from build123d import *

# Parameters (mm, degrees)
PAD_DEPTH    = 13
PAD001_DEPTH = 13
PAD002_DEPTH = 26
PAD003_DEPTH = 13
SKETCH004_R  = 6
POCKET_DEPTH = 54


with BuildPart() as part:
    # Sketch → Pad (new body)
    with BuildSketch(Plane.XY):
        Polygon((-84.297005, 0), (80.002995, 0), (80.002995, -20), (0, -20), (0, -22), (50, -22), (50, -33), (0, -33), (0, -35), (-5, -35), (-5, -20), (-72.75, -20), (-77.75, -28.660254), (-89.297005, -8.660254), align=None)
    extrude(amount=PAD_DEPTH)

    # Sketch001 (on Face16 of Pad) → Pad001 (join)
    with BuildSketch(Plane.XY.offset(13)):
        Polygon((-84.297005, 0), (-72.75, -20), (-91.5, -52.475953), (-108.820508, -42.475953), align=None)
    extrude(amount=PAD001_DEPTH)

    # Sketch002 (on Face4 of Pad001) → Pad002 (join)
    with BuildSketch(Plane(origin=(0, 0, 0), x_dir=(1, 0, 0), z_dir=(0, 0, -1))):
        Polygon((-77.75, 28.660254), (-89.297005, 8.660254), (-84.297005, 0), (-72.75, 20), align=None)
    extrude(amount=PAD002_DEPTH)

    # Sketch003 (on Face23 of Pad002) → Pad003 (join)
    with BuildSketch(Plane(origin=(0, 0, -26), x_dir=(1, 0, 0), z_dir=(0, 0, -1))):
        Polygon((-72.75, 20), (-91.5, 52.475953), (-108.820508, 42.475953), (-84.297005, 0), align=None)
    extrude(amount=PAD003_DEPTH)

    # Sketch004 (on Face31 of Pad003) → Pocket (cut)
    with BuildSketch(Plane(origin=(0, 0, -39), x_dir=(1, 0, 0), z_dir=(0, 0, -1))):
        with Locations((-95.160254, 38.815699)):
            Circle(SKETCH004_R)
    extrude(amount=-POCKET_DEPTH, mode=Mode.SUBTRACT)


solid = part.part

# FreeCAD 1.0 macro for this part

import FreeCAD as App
import Part
import Sketcher
Q = App.Units.Quantity


def add_polygon(sketch, points):
    """Adds a closed chain of lines whose ends are joined by coincident constraints."""
    first, n = sketch.GeometryCount, len(points)
    for a, b in zip(points, points[1:] + points[:1]):
        sketch.addGeometry(Part.LineSegment(App.Vector(*a, 0), App.Vector(*b, 0)), False)
    for i in range(n):
        sketch.addConstraint(Sketcher.Constraint("Coincident", first + i, 2, first + (i + 1) % n, 1))

doc = App.newDocument("Part")
params = doc.addObject("Spreadsheet::Sheet", "Params")
for row, (alias, value) in enumerate([
    ("sketch1_width", "5 mm"),
    ("sketch1_width2", "50 mm"),
    ("sketch1_height", "15 mm"),
    ("sketch1_height2", "2 mm"),
    ("sketch1_height3", "20 mm"),
    ("pad1_length", "13 mm"),
    ("sketch2_length", "20 mm"),
    ("sketch2_length2", "37.5 mm"),
    ("pad2_length", "13 mm"),
    ("sketch3_length", "10 mm"),
    ("pad3_length", "26 mm"),
    ("sketch4_length", "20 mm"),
    ("sketch4_length2", "37.5 mm"),
    ("pad4_length", "13 mm"),
    ("sketch5_diameter", "12 mm"),
    ("pocket1_length", "54 mm"),
], start=1):
    params.set(f"A{row}", alias)
    params.set(f"B{row}", "=" + value)
    params.setAlias(f"B{row}", alias)

body = doc.addObject("PartDesign::Body", "Body")

sketch1 = doc.addObject("Sketcher::SketchObject", "Sketch")
body.addObject(sketch1)
sketch1.AttachmentSupport = (doc.XY_Plane, [""])
sketch1.MapMode = "FlatFace"
add_polygon(sketch1, [(80.002995, 0), (-84.297005, 0), (-89.297005, -8.660254), (-77.75, -28.660254), (-72.75, -20), (-5, -20), (-5, -35), (0, -35), (0, -33), (50, -33), (50, -22), (0, -22), (0, -20), (80.002995, -20)])
sketch1.addConstraint(Sketcher.Constraint("Horizontal", 0))
sketch1.addConstraint(Sketcher.Constraint("Horizontal", 4))
sketch1.addConstraint(Sketcher.Constraint("Vertical", 5))
sketch1.addConstraint(Sketcher.Constraint("Horizontal", 6))
sketch1.addConstraint(Sketcher.Constraint("Vertical", 7))
sketch1.addConstraint(Sketcher.Constraint("Horizontal", 8))
sketch1.addConstraint(Sketcher.Constraint("Vertical", 9))
sketch1.addConstraint(Sketcher.Constraint("Horizontal", 10))
sketch1.addConstraint(Sketcher.Constraint("Vertical", 11))
sketch1.addConstraint(Sketcher.Constraint("Horizontal", 12))
sketch1.addConstraint(Sketcher.Constraint("Vertical", 13))
sketch1.addConstraint(Sketcher.Constraint("PointOnObject", 0, 2, -1))
sketch1.addConstraint(Sketcher.Constraint("PointOnObject", 6, 2, -2))
sketch1.addConstraint(Sketcher.Constraint("PointOnObject", 10, 2, -2))
sketch1.addConstraint(Sketcher.Constraint("Parallel", 1, 3))
sketch1.addConstraint(Sketcher.Constraint("Horizontal", 4, 2, 11, 2))
sketch1.addConstraint(Sketcher.Constraint("Equal", 7, 11))
sketch1.addConstraint(Sketcher.Constraint("Equal", 1, 3))
sketch1.addConstraint(Sketcher.Constraint("DistanceX", 6, 1, 6, 2, Q("5 mm")))
sketch1.addConstraint(Sketcher.Constraint("DistanceX", 8, 1, 8, 2, Q("50 mm")))
sketch1.addConstraint(Sketcher.Constraint("DistanceY", 5, 2, 5, 1, Q("15 mm")))
sketch1.addConstraint(Sketcher.Constraint("DistanceY", 7, 1, 7, 2, Q("2 mm")))
sketch1.addConstraint(Sketcher.Constraint("DistanceY", 13, 1, 13, 2, Q("20 mm")))
sketch1.addConstraint(Sketcher.Constraint("Angle", 1, Q("-120 deg")))
sketch1.addConstraint(Sketcher.Constraint("Angle", 2, Q("-60.000001 deg")))
sketch1.addConstraint(Sketcher.Constraint("Distance", 1, Q("10 mm")))
sketch1.addConstraint(Sketcher.Constraint("DistanceX", 0, 2, 0, 1, Q("164.3 mm")))
sketch1.addConstraint(Sketcher.Constraint("DistanceX", 4, 1, 4, 2, Q("67.75 mm")))
sketch1.setExpression("Constraints[32]", "Params.sketch1_width")
sketch1.setExpression("Constraints[33]", "Params.sketch1_width2")
sketch1.setExpression("Constraints[34]", "Params.sketch1_height")
sketch1.setExpression("Constraints[35]", "Params.sketch1_height2")
sketch1.setExpression("Constraints[36]", "Params.sketch1_height3")
pad1 = doc.addObject("PartDesign::Pad", "Pad")
body.addObject(pad1)
pad1.Profile = sketch1
pad1.setExpression("Length", "Params.pad1_length")

sketch2 = doc.addObject("Sketcher::SketchObject", "Sketch001")
body.addObject(sketch2)
sketch2.AttachmentSupport = (doc.XY_Plane, [""])
sketch2.MapMode = "FlatFace"
sketch2.AttachmentOffset = App.Placement(App.Vector(0, 0, 13), App.Rotation())
add_polygon(sketch2, [(-72.75, -20), (-84.297005, 0), (-108.820508, -42.475953), (-91.5, -52.475953)])
sketch2.addConstraint(Sketcher.Constraint("PointOnObject", 0, 2, -1))
sketch2.addConstraint(Sketcher.Constraint("Perpendicular", 1, 2))
sketch2.addConstraint(Sketcher.Constraint("Perpendicular", 2, 3))
sketch2.addConstraint(Sketcher.Constraint("Angle", 0, Q("119.999999 deg")))
sketch2.addConstraint(Sketcher.Constraint("Angle", 1, Q("-120 deg")))
sketch2.addConstraint(Sketcher.Constraint("Distance", 2, Q("20 mm")))
sketch2.addConstraint(Sketcher.Constraint("Distance", 3, Q("37.5 mm")))
sketch2.addConstraint(Sketcher.Constraint("DistanceX", 2, 2, -1, 1, Q("91.5 mm")))
sketch2.setExpression("Constraints[9]", "Params.sketch2_length")
sketch2.setExpression("Constraints[10]", "Params.sketch2_length2")
pad2 = doc.addObject("PartDesign::Pad", "Pad001")
body.addObject(pad2)
pad2.Profile = sketch2
pad2.setExpression("Length", "Params.pad2_length")

sketch3 = doc.addObject("Sketcher::SketchObject", "Sketch002")
body.addObject(sketch3)
sketch3.AttachmentSupport = (doc.XY_Plane, [""])
sketch3.MapMode = "FlatFace"
add_polygon(sketch3, [(-77.75, -28.660254), (-89.297005, -8.660254), (-84.297005, 0), (-72.75, -20)])
sketch3.addConstraint(Sketcher.Constraint("PointOnObject", 1, 2, -1))
sketch3.addConstraint(Sketcher.Constraint("Parallel", 0, 2))
sketch3.addConstraint(Sketcher.Constraint("Parallel", 1, 3))
sketch3.addConstraint(Sketcher.Constraint("Angle", 0, Q("119.999999 deg")))
sketch3.addConstraint(Sketcher.Constraint("Angle", 1, Q("60 deg")))
sketch3.addConstraint(Sketcher.Constraint("Distance", 1, Q("10 mm")))
sketch3.addConstraint(Sketcher.Constraint("DistanceY", 2, 2, -1, 1, Q("20 mm")))
sketch3.addConstraint(Sketcher.Constraint("DistanceX", 2, 2, -1, 1, Q("72.75 mm")))
sketch3.setExpression("Constraints[9]", "Params.sketch3_length")
pad3 = doc.addObject("PartDesign::Pad", "Pad002")
body.addObject(pad3)
pad3.Profile = sketch3
pad3.setExpression("Length", "Params.pad3_length")
pad3.Reversed = True

sketch4 = doc.addObject("Sketcher::SketchObject", "Sketch003")
body.addObject(sketch4)
sketch4.AttachmentSupport = (doc.XY_Plane, [""])
sketch4.MapMode = "FlatFace"
sketch4.AttachmentOffset = App.Placement(App.Vector(0, 0, -26), App.Rotation())
add_polygon(sketch4, [(-72.75, -20), (-91.5, -52.475953), (-108.820508, -42.475953), (-84.297005, 0)])
sketch4.addConstraint(Sketcher.Constraint("PointOnObject", 2, 2, -1))
sketch4.addConstraint(Sketcher.Constraint("Perpendicular", 0, 1))
sketch4.addConstraint(Sketcher.Constraint("Perpendicular", 1, 2))
sketch4.addConstraint(Sketcher.Constraint("Angle", 0, Q("-120 deg")))
sketch4.addConstraint(Sketcher.Constraint("Angle", 3, Q("-60.000001 deg")))
sketch4.addConstraint(Sketcher.Constraint("Distance", 1, Q("20 mm")))
sketch4.addConstraint(Sketcher.Constraint("Distance", 0, Q("37.5 mm")))
sketch4.addConstraint(Sketcher.Constraint("DistanceX", 0, 2, -1, 1, Q("91.5 mm")))
sketch4.setExpression("Constraints[9]", "Params.sketch4_length")
sketch4.setExpression("Constraints[10]", "Params.sketch4_length2")
pad4 = doc.addObject("PartDesign::Pad", "Pad003")
body.addObject(pad4)
pad4.Profile = sketch4
pad4.setExpression("Length", "Params.pad4_length")
pad4.Reversed = True

sketch5 = doc.addObject("Sketcher::SketchObject", "Sketch004")
body.addObject(sketch5)
sketch5.AttachmentSupport = (doc.XY_Plane, [""])
sketch5.MapMode = "FlatFace"
sketch5.AttachmentOffset = App.Placement(App.Vector(0, 0, -39), App.Rotation())
sketch5.addGeometry(Part.Circle(App.Vector(-95.160254, -38.815699, 0), App.Vector(0, 0, 1), 6), False)
sketch5.addConstraint(Sketcher.Constraint("Diameter", 0, Q("12 mm")))
sketch5.addConstraint(Sketcher.Constraint("DistanceY", 0, 3, -1, 1, Q("38.815699 mm")))
sketch5.addConstraint(Sketcher.Constraint("DistanceX", 0, 3, -1, 1, Q("95.160254 mm")))
sketch5.setExpression("Constraints[0]", "Params.sketch5_diameter")
pocket1 = doc.addObject("PartDesign::Pocket", "Pocket")
body.addObject(pocket1)
pocket1.Profile = sketch5
pocket1.setExpression("Length", "Params.pocket1_length")
pocket1.Reversed = True

doc.recompute()
